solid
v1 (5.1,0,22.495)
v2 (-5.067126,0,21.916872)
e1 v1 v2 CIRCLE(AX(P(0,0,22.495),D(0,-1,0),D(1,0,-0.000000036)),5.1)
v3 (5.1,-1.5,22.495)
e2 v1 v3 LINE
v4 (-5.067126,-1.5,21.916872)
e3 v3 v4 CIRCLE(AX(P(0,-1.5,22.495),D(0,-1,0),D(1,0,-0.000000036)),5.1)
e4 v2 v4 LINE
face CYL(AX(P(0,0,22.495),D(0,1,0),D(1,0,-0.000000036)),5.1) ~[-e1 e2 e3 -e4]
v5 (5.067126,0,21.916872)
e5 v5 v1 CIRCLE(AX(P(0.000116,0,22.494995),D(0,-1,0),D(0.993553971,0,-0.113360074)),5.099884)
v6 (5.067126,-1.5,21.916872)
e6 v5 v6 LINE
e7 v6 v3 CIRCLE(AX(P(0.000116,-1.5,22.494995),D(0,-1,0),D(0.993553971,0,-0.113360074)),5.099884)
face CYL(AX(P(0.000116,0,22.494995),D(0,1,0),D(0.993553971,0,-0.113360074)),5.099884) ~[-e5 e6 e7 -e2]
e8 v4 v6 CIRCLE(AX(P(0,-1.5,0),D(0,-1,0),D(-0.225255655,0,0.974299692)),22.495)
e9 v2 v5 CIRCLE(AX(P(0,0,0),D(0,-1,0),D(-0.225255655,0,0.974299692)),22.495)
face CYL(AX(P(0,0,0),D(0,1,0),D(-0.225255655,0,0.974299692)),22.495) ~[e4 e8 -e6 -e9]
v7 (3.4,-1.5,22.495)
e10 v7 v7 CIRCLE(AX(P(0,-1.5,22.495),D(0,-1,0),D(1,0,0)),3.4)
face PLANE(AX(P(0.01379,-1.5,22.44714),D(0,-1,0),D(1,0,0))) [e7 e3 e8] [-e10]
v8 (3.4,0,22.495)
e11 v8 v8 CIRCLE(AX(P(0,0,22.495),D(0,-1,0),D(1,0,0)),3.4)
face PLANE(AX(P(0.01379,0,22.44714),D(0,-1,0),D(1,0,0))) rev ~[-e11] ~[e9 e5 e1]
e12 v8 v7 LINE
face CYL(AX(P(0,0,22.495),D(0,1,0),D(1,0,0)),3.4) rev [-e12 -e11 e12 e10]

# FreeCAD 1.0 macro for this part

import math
import FreeCAD as App
import Part
import Sketcher

V = App.Vector
Q = App.Units.Quantity

doc = App.newDocument("Part")
body = doc.addObject("PartDesign::Body", "Body")

# Sketch on XZ plane
sketch1 = doc.addObject("Sketcher::SketchObject", "Sketch")
body.addObject(sketch1)
sketch1.AttachmentSupport = (doc.XZ_Plane, [""])
sketch1.MapMode = "FlatFace"
sketch1.addGeometry([
    Part.ArcOfCircle(Part.Circle(V(0, 22.495, 0), V(0, 0, 1), 5.1), math.radians(-0.000002), math.radians(186.508953)),
    Part.ArcOfCircle(Part.Circle(V(0, 0, 0), V(0, 0, 1), 22.495), math.radians(103.017912), math.radians(436.982088)),
    Part.ArcOfCircle(Part.Circle(V(0.000116, 22.494995, 0), V(0, 0, 1), 5.099884), math.radians(-6.509046), math.radians(0.000053)),
    Part.Circle(V(0, 22.495, 0), V(0, 0, 1), 3.4),
], False)
sketch1.addConstraint([
    Sketcher.Constraint("Coincident", 0, 2, 1, 1),
    Sketcher.Constraint("Coincident", 1, 2, 2, 1),
    Sketcher.Constraint("Tangent", 2, 2, 0, 1),
    Sketcher.Constraint("Coincident", 1, 3, -1, 1),
    Sketcher.Constraint("Coincident", 3, 3, 0, 3),
    Sketcher.Constraint("PointOnObject", 0, 3, -2),
    Sketcher.Constraint("Horizontal", 3, 3, 2, 2),
    Sketcher.Constraint("Diameter", 3, Q("6.8 mm")),
    Sketcher.Constraint("Radius", 0, Q("5.1 mm")),
    Sketcher.Constraint("Radius", 1, Q("22.495 mm")),
    Sketcher.Constraint("DistanceY", -1, 1, 0, 3, Q("22.495 mm")),
    Sketcher.Constraint("Radius", 2, Q("5.099884 mm")),
])
pad1 = doc.addObject("PartDesign::Pad", "Pad")
body.addObject(pad1)
pad1.Profile = sketch1
pad1.Length = 1.5

doc.recompute()
